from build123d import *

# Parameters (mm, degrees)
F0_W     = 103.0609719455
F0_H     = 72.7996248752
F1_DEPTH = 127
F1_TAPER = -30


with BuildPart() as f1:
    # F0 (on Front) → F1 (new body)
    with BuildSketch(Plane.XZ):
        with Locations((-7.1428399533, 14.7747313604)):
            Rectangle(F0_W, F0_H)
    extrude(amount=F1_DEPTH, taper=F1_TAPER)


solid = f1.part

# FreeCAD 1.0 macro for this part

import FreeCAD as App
import Part
import Sketcher
from FreeCAD import Vector

doc = App.newDocument("Part")
params = doc.addObject("Spreadsheet::Sheet", "Params")
for row, (alias, value) in enumerate([
    ("pad1_length", "5 in"),
    ("pad1_taper", "30 deg"),
], start=1):
    params.set(f"A{row}", alias)
    params.set(f"B{row}", "=" + value)
    params.setAlias(f"B{row}", alias)

body = doc.addObject("PartDesign::Body", "Body")

sketch1 = body.newObject("Sketcher::SketchObject", "Sketch")
sketch1.AttachmentSupport = (doc.getObject("XZ_Plane"), [""])
sketch1.MapMode = "FlatFace"
sketch1.addGeometry([
    Part.LineSegment(Vector(-59, 51, 0), Vector(-59, -22, 0)),
    Part.LineSegment(Vector(-59, -22, 0), Vector(44, -22, 0)),
    Part.LineSegment(Vector(44, -22, 0), Vector(44, 51, 0)),
    Part.LineSegment(Vector(44, 51, 0), Vector(-59, 51, 0)),
], False)
sketch1.addConstraint([
    Sketcher.Constraint("Coincident", 0, 2, 1, 1),
    Sketcher.Constraint("Coincident", 1, 2, 2, 1),
    Sketcher.Constraint("Coincident", 2, 2, 3, 1),
    Sketcher.Constraint("Coincident", 3, 2, 0, 1),
    Sketcher.Constraint("Vertical", 0),
    Sketcher.Constraint("Horizontal", 1),
    Sketcher.Constraint("Vertical", 2),
    Sketcher.Constraint("Horizontal", 3),
    Sketcher.Constraint("DistanceX", 1, 1, 1, 2, 103.060972),
    Sketcher.Constraint("DistanceY", 0, 2, 0, 1, 72.799625),
    Sketcher.Constraint("DistanceY", 0, 2, -1, 1, 21.625081),
    Sketcher.Constraint("DistanceX", 0, 2, -1, 1, 58.673326),
])
pad1 = body.newObject("PartDesign::Pad", "Pad")
pad1.Profile = sketch1
pad1.setExpression("Length", "Params.pad1_length")
pad1.setExpression("TaperAngle", "Params.pad1_taper")

doc.recompute()
